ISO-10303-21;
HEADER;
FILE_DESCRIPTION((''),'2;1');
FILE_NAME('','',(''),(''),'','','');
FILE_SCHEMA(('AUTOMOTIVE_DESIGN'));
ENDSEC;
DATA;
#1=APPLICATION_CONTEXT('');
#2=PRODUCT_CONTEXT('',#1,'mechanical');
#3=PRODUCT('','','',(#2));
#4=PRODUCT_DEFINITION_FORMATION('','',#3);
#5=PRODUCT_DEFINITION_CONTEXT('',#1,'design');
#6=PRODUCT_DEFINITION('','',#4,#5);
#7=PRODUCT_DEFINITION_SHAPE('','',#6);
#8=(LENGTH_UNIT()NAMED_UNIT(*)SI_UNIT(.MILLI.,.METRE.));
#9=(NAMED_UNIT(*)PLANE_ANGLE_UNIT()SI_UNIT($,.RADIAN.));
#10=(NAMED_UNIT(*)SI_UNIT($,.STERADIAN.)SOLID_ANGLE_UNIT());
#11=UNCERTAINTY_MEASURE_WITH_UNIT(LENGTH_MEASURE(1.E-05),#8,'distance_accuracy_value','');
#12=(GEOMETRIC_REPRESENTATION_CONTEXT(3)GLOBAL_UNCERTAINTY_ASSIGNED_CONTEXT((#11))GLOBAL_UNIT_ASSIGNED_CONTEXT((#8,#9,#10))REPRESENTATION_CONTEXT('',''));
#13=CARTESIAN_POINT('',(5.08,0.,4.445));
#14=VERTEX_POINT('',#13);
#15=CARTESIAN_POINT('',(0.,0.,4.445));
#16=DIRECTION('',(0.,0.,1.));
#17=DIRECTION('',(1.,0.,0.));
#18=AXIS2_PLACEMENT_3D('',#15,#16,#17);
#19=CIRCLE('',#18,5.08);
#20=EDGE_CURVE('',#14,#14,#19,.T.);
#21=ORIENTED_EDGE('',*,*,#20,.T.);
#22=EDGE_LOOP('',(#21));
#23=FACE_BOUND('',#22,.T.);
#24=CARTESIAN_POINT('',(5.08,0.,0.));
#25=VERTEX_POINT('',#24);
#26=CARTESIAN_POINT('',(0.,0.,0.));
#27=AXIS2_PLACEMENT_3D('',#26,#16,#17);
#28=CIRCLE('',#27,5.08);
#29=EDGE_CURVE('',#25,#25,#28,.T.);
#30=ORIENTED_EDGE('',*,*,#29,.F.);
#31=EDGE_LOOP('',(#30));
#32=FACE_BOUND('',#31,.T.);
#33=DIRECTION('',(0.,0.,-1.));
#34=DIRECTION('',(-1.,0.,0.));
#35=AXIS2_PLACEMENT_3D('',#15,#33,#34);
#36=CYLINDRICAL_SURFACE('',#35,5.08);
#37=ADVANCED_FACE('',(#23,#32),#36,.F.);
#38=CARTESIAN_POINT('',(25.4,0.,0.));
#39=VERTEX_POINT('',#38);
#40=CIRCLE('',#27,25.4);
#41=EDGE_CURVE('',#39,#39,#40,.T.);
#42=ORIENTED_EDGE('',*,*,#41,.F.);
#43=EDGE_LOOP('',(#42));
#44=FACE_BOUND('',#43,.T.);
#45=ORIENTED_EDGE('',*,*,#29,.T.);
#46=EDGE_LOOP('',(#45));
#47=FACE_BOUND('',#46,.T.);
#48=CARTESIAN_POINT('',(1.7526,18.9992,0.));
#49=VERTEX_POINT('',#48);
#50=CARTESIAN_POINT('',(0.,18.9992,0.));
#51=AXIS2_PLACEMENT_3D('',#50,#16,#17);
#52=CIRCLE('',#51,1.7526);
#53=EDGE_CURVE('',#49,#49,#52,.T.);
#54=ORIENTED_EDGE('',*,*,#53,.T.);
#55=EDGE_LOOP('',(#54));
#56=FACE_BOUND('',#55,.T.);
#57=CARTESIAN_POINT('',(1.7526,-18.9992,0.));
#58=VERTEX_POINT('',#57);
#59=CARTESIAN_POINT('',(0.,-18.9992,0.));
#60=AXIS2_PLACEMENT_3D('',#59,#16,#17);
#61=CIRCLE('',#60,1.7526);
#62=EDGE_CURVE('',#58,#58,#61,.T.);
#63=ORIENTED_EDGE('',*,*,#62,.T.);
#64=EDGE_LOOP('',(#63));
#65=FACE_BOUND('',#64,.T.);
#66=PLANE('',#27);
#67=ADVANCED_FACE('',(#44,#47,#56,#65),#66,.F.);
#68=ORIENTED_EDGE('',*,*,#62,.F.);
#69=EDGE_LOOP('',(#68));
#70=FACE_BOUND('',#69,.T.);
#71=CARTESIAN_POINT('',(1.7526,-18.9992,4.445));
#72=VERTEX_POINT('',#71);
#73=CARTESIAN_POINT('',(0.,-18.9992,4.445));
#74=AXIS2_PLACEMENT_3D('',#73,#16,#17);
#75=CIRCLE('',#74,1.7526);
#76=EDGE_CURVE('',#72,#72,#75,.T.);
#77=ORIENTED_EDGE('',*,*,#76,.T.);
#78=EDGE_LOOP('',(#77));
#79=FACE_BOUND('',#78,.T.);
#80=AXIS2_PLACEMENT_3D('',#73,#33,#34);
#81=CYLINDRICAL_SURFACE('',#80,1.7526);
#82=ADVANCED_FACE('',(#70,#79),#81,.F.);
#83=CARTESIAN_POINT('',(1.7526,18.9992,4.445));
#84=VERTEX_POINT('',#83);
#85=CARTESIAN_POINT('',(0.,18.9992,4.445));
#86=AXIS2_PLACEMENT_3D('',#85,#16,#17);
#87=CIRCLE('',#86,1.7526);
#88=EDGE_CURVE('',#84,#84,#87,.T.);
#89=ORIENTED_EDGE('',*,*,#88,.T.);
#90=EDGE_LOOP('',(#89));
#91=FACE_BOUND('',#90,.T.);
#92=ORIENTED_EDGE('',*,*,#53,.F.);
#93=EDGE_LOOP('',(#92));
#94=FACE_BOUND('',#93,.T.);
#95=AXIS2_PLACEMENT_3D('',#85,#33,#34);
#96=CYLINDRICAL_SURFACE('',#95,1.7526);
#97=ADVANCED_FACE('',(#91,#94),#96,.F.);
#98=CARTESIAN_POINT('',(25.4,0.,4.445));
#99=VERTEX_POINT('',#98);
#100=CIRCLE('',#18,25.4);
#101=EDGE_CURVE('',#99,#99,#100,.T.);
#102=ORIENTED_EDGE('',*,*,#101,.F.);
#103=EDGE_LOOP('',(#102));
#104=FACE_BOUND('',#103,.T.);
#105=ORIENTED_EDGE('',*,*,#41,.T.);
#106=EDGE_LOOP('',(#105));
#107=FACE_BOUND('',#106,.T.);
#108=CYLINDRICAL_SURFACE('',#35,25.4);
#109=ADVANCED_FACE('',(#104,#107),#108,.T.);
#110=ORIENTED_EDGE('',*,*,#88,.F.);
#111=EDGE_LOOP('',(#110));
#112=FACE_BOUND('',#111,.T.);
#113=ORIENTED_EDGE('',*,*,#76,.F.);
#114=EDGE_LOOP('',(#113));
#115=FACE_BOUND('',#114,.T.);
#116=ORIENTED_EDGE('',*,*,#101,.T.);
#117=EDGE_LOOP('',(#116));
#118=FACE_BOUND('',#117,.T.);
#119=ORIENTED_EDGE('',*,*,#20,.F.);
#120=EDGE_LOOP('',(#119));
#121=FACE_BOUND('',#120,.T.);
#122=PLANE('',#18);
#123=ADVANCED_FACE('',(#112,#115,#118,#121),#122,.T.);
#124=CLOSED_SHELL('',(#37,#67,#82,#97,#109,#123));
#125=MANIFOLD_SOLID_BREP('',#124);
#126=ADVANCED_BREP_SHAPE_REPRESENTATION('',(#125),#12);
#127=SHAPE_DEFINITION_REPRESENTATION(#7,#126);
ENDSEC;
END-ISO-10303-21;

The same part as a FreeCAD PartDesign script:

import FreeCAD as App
import Part
import Sketcher

V = App.Vector
Q = App.Units.Quantity

doc = App.newDocument("Part")
body = doc.addObject("PartDesign::Body", "Body")

# Sketch on XY plane
sketch1 = body.newObject("Sketcher::SketchObject", "Sketch")
sketch1.AttachmentSupport = (doc.getObject("XY_Plane"), [""])
sketch1.MapMode = "FlatFace"
sketch1.addGeometry(Part.Circle(V(0, 0, 0), V(0, 0, 1), 25.4), False)
sketch1.addGeometry(Part.Circle(V(0, -19, 0), V(0, 0, 1), 1.8), False)
sketch1.addGeometry(Part.Circle(V(0, 0, 0), V(0, 0, 1), 5.1), False)
sketch1.addGeometry(Part.Circle(V(0, 19, 0), V(0, 0, 1), 1.8), False)
sketch1.addConstraint(Sketcher.Constraint("Coincident", 0, 3, -1, 1))
sketch1.addConstraint(Sketcher.Constraint("Coincident", 2, 3, -1, 1))
sketch1.addConstraint(Sketcher.Constraint("Equal", 1, 3))
sketch1.addConstraint(Sketcher.Constraint("Symmetric", 1, 3, 3, 3, -1, 1))
sketch1.addConstraint(Sketcher.Constraint("PointOnObject", 1, 3, -2))
sketch1.addConstraint(Sketcher.Constraint("Diameter", 0, Q("2 in")))
sketch1.addConstraint(Sketcher.Constraint("Diameter", 2, Q("0.4 in")))
sketch1.addConstraint(Sketcher.Constraint("Diameter", 1, Q("0.138 in")))
sketch1.addConstraint(Sketcher.Constraint("DistanceY", 1, 3, -1, 1, Q("0.748 in")))
pad1 = body.newObject("PartDesign::Pad", "Pad")
pad1.Profile = sketch1
pad1.Length = Q("0.175 in")

doc.recompute()
